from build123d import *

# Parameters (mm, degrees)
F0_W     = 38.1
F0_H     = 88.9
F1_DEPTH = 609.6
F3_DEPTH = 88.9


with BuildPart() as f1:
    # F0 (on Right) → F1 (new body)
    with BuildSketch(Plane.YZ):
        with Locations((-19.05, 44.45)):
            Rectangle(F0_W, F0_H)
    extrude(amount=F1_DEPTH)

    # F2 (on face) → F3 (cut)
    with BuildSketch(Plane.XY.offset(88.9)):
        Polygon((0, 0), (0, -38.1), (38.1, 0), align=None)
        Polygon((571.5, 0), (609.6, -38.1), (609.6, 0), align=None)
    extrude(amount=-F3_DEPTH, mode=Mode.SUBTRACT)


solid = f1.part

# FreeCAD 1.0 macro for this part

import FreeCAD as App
import Part
import Sketcher
Q = App.Units.Quantity

doc = App.newDocument("Part")
params = doc.addObject("Spreadsheet::Sheet", "Params")
for row, (alias, value) in enumerate([
    ("sketch1_width", "1.5 in"),
    ("sketch1_height", "3.5 in"),
    ("pad1_length", "24 in"),
    ("sketch2_width", "1.5 in"),
    ("pocket1_length", "3.5 in"),
], start=1):
    params.set(f"A{row}", alias)
    params.set(f"B{row}", "=" + value)
    params.setAlias(f"B{row}", alias)

body = doc.addObject("PartDesign::Body", "Body")

# Sketch on YZ plane
sketch1 = doc.addObject("Sketcher::SketchObject", "Sketch")
body.addObject(sketch1)
sketch1.AttachmentSupport = (doc.YZ_Plane, [""])
sketch1.MapMode = "FlatFace"
sketch1.addGeometry([
    Part.LineSegment(App.Vector(-38.1, 88.9, 0), App.Vector(-38.1, 0, 0)),
    Part.LineSegment(App.Vector(-38.1, 0, 0), App.Vector(0, 0, 0)),
    Part.LineSegment(App.Vector(0, 0, 0), App.Vector(0, 88.9, 0)),
    Part.LineSegment(App.Vector(0, 88.9, 0), App.Vector(-38.1, 88.9, 0)),
], False)
sketch1.addConstraint([
    Sketcher.Constraint("Coincident", 0, 2, 1, 1),
    Sketcher.Constraint("Coincident", 1, 2, 2, 1),
    Sketcher.Constraint("Coincident", 2, 2, 3, 1),
    Sketcher.Constraint("Coincident", 3, 2, 0, 1),
    Sketcher.Constraint("Vertical", 0),
    Sketcher.Constraint("Horizontal", 1),
    Sketcher.Constraint("Vertical", 2),
    Sketcher.Constraint("Horizontal", 3),
    Sketcher.Constraint("Coincident", 1, 2, -1, 1),
    Sketcher.Constraint("DistanceX", 1, 1, 1, 2, Q("1.5 in")),
    Sketcher.Constraint("DistanceY", 0, 2, 0, 1, Q("3.5 in")),
])
sketch1.setExpression("Constraints[9]", "Params.sketch1_width")
sketch1.setExpression("Constraints[10]", "Params.sketch1_height")
pad1 = doc.addObject("PartDesign::Pad", "Pad")
body.addObject(pad1)
pad1.Profile = sketch1
pad1.setExpression("Length", "Params.pad1_length")

# Sketch on XY plane
sketch2 = doc.addObject("Sketcher::SketchObject", "Sketch001")
body.addObject(sketch2)
sketch2.AttachmentSupport = (doc.XY_Plane, [""])
sketch2.MapMode = "FlatFace"
sketch2.AttachmentOffset = App.Placement(App.Vector(0, 0, 3.5 * 25.4), App.Rotation())
sketch2.addGeometry([
    Part.LineSegment(App.Vector(0, 0, 0), App.Vector(0, -38.1, 0)),  # 0
    Part.LineSegment(App.Vector(0, -38.1, 0), App.Vector(38.1, 0, 0)),  # 1
    Part.LineSegment(App.Vector(38.1, 0, 0), App.Vector(0, 0, 0)),  # 2
    Part.LineSegment(App.Vector(571.5, 0, 0), App.Vector(609.6, -38.1, 0)),  # 3
    Part.LineSegment(App.Vector(609.6, -38.1, 0), App.Vector(609.6, 0, 0)),  # 4
    Part.LineSegment(App.Vector(609.6, 0, 0), App.Vector(571.5, 0, 0)),  # 5
], False)
sketch2.addConstraint([
    Sketcher.Constraint("Coincident", 0, 2, 1, 1),
    Sketcher.Constraint("Coincident", 1, 2, 2, 1),
    Sketcher.Constraint("Coincident", 2, 2, 0, 1),
    Sketcher.Constraint("Coincident", 3, 2, 4, 1),
    Sketcher.Constraint("Coincident", 4, 2, 5, 1),
    Sketcher.Constraint("Coincident", 5, 2, 3, 1),
    Sketcher.Constraint("Vertical", 0),
    Sketcher.Constraint("Horizontal", 2),
    Sketcher.Constraint("Vertical", 4),
    Sketcher.Constraint("Horizontal", 5),
    Sketcher.Constraint("Coincident", 2, 2, -1, 1),
    Sketcher.Constraint("PointOnObject", 4, 2, -1),
    Sketcher.Constraint("Perpendicular", 1, 3),
    Sketcher.Constraint("Horizontal", 0, 2, 3, 2),
    Sketcher.Constraint("Equal", 2, 5),
    Sketcher.Constraint("DistanceX", 2, 2, 2, 1, Q("1.5 in")),
    Sketcher.Constraint("DistanceX", -1, 1, 3, 2, Q("24 in")),
])
sketch2.setExpression("Constraints[15]", "Params.sketch2_width")
pocket1 = doc.addObject("PartDesign::Pocket", "Pocket")
body.addObject(pocket1)
pocket1.Profile = sketch2
pocket1.setExpression("Length", "Params.pocket1_length")

doc.recompute()
